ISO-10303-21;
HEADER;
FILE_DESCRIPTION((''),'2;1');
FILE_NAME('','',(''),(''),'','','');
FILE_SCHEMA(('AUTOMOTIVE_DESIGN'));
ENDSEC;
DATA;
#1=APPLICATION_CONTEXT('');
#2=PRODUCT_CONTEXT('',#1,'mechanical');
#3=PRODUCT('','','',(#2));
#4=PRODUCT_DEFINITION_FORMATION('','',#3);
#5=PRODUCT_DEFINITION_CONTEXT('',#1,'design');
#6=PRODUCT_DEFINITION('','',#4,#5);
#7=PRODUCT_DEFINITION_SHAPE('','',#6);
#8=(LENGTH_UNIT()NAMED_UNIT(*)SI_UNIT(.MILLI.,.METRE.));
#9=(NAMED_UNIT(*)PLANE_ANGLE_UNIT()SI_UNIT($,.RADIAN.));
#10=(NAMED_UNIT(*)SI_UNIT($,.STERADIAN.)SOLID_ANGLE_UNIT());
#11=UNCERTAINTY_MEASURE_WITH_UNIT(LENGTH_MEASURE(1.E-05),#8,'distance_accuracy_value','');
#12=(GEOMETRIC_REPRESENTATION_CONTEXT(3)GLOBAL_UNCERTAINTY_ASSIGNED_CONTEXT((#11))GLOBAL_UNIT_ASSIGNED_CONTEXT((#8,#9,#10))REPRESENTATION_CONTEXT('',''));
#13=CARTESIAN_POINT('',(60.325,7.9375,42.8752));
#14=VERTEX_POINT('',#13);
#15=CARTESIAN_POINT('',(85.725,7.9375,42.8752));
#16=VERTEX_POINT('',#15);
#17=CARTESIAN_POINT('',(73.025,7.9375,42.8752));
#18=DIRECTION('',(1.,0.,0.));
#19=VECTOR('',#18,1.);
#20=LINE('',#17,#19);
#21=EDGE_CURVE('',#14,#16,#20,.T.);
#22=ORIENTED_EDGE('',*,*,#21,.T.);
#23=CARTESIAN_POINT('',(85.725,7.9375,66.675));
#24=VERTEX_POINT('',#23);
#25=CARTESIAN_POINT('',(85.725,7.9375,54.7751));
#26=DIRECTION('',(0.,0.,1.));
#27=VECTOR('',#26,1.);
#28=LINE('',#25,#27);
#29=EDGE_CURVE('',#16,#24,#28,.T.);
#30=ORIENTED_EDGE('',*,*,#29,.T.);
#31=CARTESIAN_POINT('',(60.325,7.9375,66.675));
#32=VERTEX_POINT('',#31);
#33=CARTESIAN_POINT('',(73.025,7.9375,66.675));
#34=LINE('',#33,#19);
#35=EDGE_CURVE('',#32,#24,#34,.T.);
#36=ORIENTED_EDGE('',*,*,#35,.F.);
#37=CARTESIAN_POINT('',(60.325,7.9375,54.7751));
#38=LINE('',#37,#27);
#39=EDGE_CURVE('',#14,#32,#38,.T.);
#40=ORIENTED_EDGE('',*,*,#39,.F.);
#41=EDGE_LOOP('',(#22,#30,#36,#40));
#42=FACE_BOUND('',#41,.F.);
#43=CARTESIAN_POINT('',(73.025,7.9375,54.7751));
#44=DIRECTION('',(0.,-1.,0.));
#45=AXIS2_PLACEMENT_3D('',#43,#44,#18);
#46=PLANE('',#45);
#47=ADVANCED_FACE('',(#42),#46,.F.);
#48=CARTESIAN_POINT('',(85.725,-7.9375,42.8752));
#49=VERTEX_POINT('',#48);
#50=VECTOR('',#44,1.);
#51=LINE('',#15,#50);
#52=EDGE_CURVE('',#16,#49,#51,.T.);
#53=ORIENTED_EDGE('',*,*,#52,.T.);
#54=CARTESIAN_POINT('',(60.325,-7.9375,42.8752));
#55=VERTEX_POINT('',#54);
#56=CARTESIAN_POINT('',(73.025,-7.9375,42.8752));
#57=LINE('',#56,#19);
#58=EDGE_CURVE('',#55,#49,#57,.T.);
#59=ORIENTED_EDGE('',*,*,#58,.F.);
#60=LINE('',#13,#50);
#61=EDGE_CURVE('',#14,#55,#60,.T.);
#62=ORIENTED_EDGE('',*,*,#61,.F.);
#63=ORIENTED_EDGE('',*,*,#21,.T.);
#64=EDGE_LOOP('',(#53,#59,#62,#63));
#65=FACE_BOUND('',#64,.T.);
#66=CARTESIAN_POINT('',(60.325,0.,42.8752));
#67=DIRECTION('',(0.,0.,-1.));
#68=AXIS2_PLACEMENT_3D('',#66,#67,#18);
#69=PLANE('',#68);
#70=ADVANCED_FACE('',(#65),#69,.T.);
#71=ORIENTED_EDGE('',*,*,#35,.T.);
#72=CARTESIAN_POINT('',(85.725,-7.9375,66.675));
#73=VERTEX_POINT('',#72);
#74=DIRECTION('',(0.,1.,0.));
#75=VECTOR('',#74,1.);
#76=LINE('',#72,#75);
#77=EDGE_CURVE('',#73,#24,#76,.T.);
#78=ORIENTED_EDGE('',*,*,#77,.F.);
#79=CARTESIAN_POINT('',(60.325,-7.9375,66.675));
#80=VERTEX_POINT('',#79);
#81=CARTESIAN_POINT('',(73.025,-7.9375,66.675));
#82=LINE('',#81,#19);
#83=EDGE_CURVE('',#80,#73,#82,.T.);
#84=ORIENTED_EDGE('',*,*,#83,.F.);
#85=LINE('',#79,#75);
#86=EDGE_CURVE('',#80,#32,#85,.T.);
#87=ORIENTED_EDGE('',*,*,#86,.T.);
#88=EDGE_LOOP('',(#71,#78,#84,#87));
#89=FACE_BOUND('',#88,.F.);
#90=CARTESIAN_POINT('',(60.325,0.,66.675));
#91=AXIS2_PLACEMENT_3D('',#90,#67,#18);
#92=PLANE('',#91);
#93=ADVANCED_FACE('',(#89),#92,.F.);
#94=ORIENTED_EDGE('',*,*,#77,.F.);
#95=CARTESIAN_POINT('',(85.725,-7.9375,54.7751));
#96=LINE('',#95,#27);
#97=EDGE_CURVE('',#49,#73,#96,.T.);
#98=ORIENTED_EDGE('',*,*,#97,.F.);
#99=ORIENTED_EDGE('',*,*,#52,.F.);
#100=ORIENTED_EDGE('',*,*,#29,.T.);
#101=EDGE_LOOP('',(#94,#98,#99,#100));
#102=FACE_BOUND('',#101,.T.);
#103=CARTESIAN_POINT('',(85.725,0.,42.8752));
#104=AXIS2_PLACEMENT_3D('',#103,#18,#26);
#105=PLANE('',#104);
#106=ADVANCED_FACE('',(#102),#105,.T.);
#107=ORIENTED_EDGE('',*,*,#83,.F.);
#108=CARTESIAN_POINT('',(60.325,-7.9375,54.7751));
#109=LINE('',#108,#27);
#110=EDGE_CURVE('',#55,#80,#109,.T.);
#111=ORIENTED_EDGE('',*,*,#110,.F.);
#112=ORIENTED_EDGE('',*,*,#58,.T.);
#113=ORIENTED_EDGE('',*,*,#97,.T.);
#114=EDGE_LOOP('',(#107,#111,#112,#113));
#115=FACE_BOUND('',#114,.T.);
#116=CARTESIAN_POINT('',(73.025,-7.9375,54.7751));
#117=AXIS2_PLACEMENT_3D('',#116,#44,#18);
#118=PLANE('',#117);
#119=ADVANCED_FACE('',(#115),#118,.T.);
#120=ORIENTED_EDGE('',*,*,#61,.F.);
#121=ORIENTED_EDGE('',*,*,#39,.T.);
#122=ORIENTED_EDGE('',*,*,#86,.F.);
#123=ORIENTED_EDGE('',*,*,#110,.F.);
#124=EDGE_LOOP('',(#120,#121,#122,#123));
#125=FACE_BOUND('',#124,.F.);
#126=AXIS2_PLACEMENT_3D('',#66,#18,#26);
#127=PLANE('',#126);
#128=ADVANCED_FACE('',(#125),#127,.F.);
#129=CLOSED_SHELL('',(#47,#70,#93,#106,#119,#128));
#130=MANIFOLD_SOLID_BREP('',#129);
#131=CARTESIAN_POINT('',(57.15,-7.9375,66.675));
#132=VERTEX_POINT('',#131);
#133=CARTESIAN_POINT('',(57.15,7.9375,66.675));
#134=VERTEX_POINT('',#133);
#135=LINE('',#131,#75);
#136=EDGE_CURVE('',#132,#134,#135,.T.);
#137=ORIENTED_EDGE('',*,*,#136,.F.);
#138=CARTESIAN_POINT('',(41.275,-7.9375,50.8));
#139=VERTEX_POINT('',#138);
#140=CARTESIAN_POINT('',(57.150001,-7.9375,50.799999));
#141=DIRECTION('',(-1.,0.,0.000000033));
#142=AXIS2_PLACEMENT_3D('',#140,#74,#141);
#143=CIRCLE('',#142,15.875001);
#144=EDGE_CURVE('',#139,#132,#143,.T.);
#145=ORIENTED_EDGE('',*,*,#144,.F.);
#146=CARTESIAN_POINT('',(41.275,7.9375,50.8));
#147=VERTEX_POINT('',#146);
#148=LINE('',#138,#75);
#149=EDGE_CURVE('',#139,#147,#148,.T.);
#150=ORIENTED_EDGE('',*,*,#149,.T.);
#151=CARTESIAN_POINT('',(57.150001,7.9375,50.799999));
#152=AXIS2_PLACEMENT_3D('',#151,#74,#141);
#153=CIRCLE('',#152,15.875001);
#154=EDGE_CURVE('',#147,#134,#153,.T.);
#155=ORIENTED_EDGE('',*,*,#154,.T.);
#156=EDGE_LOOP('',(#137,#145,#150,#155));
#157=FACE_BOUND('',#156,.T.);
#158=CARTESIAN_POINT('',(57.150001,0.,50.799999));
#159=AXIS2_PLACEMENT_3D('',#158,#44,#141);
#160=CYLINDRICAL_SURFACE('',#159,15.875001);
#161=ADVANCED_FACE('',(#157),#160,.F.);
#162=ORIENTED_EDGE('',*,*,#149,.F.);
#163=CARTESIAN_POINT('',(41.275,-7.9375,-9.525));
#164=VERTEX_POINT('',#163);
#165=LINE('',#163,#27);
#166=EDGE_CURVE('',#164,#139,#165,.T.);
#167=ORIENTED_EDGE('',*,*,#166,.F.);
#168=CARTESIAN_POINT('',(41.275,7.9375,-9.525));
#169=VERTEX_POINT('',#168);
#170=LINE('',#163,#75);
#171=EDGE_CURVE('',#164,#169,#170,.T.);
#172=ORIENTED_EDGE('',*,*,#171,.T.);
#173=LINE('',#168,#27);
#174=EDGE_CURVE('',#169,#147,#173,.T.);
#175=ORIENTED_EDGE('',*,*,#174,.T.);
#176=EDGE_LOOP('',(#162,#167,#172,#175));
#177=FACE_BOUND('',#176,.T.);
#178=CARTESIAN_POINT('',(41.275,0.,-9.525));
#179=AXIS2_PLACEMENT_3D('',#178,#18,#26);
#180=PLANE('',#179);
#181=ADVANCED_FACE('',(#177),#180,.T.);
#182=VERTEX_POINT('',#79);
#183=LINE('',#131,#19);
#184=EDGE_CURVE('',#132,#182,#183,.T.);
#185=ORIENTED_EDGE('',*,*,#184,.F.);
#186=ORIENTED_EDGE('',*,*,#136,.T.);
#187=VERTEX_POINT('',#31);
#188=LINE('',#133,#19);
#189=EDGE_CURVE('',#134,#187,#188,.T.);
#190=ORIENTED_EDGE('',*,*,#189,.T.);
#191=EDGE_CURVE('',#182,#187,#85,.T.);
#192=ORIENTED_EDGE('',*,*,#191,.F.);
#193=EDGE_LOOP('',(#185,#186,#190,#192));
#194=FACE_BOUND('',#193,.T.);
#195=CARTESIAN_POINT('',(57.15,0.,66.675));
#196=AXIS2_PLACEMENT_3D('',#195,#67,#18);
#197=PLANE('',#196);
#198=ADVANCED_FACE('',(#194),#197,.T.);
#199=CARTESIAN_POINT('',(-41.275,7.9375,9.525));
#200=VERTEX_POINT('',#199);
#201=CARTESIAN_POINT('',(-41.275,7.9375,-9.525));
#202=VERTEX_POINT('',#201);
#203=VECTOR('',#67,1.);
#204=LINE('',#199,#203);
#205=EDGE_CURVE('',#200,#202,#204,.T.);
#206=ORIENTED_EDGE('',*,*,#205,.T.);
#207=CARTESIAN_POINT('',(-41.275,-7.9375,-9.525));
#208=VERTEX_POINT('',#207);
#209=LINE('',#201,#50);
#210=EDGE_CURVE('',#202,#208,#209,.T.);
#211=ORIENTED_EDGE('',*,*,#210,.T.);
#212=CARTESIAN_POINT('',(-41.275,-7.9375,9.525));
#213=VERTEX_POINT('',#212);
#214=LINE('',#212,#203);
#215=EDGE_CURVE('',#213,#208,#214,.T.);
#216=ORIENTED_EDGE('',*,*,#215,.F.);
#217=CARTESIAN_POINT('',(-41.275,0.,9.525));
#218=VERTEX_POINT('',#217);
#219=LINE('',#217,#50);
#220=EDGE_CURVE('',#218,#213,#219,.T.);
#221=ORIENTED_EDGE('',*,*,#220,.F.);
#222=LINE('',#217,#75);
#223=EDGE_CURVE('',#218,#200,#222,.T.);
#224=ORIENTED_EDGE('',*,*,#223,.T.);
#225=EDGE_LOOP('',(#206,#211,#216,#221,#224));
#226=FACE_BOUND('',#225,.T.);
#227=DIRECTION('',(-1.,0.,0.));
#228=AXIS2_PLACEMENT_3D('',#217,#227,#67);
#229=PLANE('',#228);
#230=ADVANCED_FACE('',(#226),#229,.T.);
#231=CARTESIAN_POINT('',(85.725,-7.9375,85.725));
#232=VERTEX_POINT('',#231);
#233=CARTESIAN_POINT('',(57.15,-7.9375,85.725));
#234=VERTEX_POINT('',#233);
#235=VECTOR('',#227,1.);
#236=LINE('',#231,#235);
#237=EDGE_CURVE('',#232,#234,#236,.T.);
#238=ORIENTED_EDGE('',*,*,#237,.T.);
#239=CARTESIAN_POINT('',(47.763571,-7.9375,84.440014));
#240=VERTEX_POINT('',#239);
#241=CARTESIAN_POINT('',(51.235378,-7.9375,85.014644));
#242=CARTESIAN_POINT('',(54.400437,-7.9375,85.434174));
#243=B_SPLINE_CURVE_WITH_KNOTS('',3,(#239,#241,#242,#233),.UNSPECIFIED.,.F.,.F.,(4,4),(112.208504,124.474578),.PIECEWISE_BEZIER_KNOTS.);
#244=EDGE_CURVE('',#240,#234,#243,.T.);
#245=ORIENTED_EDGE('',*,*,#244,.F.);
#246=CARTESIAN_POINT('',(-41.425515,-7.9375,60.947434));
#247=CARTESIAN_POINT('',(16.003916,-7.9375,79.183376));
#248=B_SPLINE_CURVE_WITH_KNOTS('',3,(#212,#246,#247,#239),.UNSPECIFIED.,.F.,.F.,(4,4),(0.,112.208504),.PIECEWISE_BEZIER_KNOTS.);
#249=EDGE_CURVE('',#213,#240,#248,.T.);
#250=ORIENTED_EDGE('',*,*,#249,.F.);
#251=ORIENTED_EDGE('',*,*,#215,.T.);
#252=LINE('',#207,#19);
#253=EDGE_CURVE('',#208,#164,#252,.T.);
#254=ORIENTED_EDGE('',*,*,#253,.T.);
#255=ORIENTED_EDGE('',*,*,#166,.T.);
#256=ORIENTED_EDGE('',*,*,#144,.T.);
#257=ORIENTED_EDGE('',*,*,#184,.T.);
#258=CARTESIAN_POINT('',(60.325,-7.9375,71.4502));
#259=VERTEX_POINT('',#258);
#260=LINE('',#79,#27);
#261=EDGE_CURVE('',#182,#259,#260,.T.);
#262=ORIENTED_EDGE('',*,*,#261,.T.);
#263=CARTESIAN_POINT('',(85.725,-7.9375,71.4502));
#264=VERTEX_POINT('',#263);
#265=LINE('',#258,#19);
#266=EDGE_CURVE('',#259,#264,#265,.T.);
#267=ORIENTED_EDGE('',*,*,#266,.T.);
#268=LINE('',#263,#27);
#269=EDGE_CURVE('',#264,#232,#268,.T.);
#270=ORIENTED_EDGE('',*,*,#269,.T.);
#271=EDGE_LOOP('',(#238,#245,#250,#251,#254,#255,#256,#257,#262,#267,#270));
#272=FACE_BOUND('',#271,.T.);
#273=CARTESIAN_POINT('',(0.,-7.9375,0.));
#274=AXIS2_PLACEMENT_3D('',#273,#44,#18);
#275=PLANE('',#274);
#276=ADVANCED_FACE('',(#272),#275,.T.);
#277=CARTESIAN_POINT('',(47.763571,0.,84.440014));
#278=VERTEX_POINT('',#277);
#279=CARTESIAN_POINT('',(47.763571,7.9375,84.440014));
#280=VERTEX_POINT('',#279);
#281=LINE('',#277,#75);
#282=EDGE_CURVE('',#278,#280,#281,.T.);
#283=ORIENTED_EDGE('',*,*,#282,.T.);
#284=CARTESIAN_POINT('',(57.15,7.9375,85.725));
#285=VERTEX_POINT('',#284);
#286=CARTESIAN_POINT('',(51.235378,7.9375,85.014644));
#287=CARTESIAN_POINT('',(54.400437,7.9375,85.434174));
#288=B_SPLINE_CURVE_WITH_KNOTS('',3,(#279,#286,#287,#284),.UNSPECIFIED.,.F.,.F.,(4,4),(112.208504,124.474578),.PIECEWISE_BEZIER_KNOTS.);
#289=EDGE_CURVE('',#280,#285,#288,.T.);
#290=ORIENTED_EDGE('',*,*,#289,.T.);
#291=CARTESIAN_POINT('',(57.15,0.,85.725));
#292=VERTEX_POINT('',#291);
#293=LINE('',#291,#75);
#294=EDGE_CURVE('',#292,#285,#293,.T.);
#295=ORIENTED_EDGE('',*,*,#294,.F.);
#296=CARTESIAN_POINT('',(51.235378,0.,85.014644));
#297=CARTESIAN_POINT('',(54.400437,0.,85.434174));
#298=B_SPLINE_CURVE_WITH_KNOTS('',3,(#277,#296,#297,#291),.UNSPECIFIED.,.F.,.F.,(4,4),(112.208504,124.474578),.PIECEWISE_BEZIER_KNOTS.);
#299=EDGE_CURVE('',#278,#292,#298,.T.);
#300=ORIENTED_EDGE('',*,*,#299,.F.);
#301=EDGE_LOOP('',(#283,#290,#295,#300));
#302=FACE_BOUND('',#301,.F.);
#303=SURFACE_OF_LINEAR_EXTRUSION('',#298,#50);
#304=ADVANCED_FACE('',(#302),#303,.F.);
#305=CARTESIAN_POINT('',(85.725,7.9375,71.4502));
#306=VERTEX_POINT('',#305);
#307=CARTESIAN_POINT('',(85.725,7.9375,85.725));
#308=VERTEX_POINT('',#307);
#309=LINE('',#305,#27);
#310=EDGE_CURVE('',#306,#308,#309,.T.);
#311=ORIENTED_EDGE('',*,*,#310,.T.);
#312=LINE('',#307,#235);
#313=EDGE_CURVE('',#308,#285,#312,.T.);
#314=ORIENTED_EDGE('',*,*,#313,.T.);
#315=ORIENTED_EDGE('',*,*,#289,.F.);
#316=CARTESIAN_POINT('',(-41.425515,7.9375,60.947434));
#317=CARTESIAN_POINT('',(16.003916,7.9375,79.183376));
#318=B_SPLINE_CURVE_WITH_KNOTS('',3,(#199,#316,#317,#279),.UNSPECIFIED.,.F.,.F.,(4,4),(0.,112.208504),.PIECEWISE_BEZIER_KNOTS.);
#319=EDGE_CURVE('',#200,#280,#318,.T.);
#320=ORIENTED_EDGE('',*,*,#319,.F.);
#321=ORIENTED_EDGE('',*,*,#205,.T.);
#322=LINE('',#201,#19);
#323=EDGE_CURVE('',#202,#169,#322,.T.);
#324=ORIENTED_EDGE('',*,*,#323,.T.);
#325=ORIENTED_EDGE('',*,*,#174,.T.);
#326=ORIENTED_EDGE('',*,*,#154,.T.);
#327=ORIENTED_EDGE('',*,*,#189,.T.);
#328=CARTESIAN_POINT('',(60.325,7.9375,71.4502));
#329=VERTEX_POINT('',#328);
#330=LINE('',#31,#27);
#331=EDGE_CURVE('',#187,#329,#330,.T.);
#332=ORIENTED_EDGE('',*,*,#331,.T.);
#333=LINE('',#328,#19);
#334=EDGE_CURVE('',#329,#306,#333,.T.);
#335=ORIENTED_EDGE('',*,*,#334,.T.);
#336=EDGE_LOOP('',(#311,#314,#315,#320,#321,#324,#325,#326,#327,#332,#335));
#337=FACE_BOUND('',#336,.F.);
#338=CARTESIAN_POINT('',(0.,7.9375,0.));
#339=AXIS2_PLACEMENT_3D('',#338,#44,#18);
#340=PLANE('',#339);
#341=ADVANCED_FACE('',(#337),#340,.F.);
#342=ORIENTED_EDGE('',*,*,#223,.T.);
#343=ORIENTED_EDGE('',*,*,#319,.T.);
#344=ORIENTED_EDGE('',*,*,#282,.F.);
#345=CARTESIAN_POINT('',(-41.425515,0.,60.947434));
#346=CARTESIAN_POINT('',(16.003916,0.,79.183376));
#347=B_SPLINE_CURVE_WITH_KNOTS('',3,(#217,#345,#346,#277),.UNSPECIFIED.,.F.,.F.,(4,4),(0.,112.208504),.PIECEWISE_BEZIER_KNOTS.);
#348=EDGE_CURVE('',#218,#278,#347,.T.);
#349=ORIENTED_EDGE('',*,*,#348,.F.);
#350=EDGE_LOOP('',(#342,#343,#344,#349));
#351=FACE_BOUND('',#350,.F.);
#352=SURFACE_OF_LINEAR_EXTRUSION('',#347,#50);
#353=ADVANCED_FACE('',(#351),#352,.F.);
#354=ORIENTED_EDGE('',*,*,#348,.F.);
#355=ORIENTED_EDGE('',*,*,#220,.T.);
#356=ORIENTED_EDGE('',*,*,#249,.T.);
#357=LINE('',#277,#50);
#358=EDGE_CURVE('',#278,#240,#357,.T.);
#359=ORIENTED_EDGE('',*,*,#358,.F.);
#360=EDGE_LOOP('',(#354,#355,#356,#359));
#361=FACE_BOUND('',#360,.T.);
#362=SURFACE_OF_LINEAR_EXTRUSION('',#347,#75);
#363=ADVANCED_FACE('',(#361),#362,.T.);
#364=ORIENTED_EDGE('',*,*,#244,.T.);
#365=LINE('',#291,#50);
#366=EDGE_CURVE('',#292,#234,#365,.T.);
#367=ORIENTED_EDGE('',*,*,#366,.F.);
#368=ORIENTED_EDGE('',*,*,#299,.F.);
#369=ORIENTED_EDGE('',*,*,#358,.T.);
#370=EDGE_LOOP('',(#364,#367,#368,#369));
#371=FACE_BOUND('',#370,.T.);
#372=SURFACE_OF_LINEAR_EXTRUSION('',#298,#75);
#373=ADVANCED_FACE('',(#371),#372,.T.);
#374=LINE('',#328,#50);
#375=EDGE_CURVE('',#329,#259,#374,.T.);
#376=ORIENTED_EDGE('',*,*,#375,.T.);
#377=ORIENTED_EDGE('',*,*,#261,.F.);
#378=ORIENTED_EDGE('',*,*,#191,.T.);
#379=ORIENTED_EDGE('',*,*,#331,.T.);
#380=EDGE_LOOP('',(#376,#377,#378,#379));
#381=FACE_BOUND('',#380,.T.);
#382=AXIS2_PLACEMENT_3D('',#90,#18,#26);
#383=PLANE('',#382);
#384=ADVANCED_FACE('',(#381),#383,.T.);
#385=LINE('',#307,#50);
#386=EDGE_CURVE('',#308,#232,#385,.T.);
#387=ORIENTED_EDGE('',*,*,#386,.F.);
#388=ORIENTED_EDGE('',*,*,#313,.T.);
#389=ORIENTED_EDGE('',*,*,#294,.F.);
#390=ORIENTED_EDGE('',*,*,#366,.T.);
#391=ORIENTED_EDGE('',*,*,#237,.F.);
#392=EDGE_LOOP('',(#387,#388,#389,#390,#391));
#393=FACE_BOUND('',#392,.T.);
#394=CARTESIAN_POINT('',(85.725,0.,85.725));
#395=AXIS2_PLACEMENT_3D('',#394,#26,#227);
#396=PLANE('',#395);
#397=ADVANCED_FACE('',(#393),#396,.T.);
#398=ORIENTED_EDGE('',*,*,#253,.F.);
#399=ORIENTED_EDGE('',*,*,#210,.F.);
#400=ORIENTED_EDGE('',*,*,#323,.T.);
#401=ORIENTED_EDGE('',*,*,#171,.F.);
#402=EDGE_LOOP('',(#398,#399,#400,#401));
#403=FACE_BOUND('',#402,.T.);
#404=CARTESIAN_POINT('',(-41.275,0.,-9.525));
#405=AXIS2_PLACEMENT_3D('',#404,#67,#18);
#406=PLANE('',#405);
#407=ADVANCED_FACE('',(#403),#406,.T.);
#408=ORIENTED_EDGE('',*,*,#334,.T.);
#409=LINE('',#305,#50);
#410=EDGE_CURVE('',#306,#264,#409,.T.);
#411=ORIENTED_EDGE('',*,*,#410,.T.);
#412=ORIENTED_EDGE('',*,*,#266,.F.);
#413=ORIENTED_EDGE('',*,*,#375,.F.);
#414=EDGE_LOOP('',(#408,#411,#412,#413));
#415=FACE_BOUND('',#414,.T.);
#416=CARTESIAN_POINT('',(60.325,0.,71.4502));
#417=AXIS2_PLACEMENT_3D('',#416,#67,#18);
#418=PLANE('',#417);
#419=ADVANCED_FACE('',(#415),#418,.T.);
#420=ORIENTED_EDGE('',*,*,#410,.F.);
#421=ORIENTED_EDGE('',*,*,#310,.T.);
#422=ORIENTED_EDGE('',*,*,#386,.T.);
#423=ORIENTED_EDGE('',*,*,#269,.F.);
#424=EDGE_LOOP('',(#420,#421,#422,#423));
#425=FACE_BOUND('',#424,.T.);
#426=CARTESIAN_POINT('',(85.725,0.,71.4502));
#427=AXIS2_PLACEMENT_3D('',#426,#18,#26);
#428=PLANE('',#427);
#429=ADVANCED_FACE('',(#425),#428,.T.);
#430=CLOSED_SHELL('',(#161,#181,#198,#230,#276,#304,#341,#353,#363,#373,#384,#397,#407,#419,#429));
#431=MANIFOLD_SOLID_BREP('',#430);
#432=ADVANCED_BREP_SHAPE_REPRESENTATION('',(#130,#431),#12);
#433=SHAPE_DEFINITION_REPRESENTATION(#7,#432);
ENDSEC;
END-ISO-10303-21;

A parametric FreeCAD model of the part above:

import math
import FreeCAD as App
import Part
import Sketcher
from FreeCAD import Vector
Q = App.Units.Quantity

doc = App.newDocument("Part")
body = doc.addObject("PartDesign::Body", "Body")
body.AllowCompound = True

# Sketch on XZ plane
sketch1 = body.newObject("Sketcher::SketchObject", "Sketch")
sketch1.AttachmentSupport = (doc.getObject("XZ_Plane"), [""])
sketch1.MapMode = "FlatFace"
sketch1.addGeometry(Part.LineSegment(Vector(-41.275, 9.525, 0), Vector(-41.275, -9.525, 0)), False)
sketch1.addGeometry(Part.LineSegment(Vector(-41.275, -9.525, 0), Vector(41.275, -9.525, 0)), False)
sketch1.addGeometry(Part.LineSegment(Vector(41.275, -9.525, 0), Vector(41.275, 50.8, 0)), False)
sketch1.addGeometry(Part.ArcOfCircle(Part.Circle(Vector(57.150001, 50.799999, 0), Vector(0, 0, 1), 15.875001), math.radians(90.000002), math.radians(179.999998)), False)
sketch1.addGeometry(Part.LineSegment(Vector(57.15, 66.675, 0), Vector(60.325, 66.675, 0)), False)
sketch1.addGeometry(Part.LineSegment(Vector(60.325, 66.675, 0), Vector(60.325, 71.4502, 0)), False)
sketch1.addGeometry(Part.LineSegment(Vector(60.325, 71.4502, 0), Vector(85.725, 71.4502, 0)), False)
sketch1.addGeometry(Part.LineSegment(Vector(85.725, 71.4502, 0), Vector(85.725, 85.725, 0)), False)
sketch1.addGeometry(Part.LineSegment(Vector(85.725, 85.725, 0), Vector(57.15, 85.725, 0)), False)
sketch1.addGeometry(Part.BSplineCurve([Vector(47.763571, 84.440014, 0), Vector(51.235378, 85.014644, 0), Vector(54.400437, 85.434174, 0), Vector(57.15, 85.725, 0)], [4, 4], [112.208504, 124.474578], False, 3, [1, 1, 1, 1], False), False)
sketch1.addGeometry(Part.BSplineCurve([Vector(-41.275, 9.525, 0), Vector(-41.425515, 60.947434, 0), Vector(16.003916, 79.183376, 0), Vector(47.763571, 84.440014, 0)], [4, 4], [0, 112.208504], False, 3, [1, 1, 1, 1], False), False)
sketch1.addGeometry(Part.LineSegment(Vector(60.325, 66.675, 0), Vector(60.325, 42.8752, 0)), False)
sketch1.addGeometry(Part.LineSegment(Vector(60.325, 42.8752, 0), Vector(85.725, 42.8752, 0)), False)
sketch1.addGeometry(Part.LineSegment(Vector(85.725, 42.8752, 0), Vector(85.725, 66.675, 0)), False)
sketch1.addGeometry(Part.LineSegment(Vector(85.725, 66.675, 0), Vector(60.325, 66.675, 0)), False)
sketch1.addConstraint(Sketcher.Constraint("Block", 9))
sketch1.addConstraint(Sketcher.Constraint("Block", 10))
sketch1.addConstraint(Sketcher.Constraint("Coincident", 0, 2, 1, 1))
sketch1.addConstraint(Sketcher.Constraint("Coincident", 1, 2, 2, 1))
sketch1.addConstraint(Sketcher.Constraint("Tangent", 2, 2, 3, 2))
sketch1.addConstraint(Sketcher.Constraint("Tangent", 3, 1, 4, 1))
sketch1.addConstraint(Sketcher.Constraint("Coincident", 4, 2, 5, 1))
sketch1.addConstraint(Sketcher.Constraint("Coincident", 5, 2, 6, 1))
sketch1.addConstraint(Sketcher.Constraint("Coincident", 6, 2, 7, 1))
sketch1.addConstraint(Sketcher.Constraint("Coincident", 7, 2, 8, 1))
sketch1.addConstraint(Sketcher.Constraint("Coincident", 8, 2, 9, 2))
sketch1.addConstraint(Sketcher.Constraint("Coincident", 10, 1, 0, 1))
sketch1.addConstraint(Sketcher.Constraint("Coincident", 11, 2, 12, 1))
sketch1.addConstraint(Sketcher.Constraint("Coincident", 12, 2, 13, 1))
sketch1.addConstraint(Sketcher.Constraint("Coincident", 13, 2, 14, 1))
sketch1.addConstraint(Sketcher.Constraint("Coincident", 14, 2, 11, 1))
sketch1.addConstraint(Sketcher.Constraint("Vertical", 0))
sketch1.addConstraint(Sketcher.Constraint("Horizontal", 1))
sketch1.addConstraint(Sketcher.Constraint("Vertical", 2))
sketch1.addConstraint(Sketcher.Constraint("Horizontal", 4))
sketch1.addConstraint(Sketcher.Constraint("Vertical", 5))
sketch1.addConstraint(Sketcher.Constraint("Horizontal", 6))
sketch1.addConstraint(Sketcher.Constraint("Vertical", 7))
sketch1.addConstraint(Sketcher.Constraint("Horizontal", 8))
sketch1.addConstraint(Sketcher.Constraint("Vertical", 11))
sketch1.addConstraint(Sketcher.Constraint("Horizontal", 12))
sketch1.addConstraint(Sketcher.Constraint("Vertical", 13))
sketch1.addConstraint(Sketcher.Constraint("Horizontal", 14))
sketch1.addConstraint(Sketcher.Constraint("Coincident", 14, 2, 4, 2))
sketch1.addConstraint(Sketcher.Constraint("Vertical", 3, 1, 8, 2))
sketch1.addConstraint(Sketcher.Constraint("Vertical", 7, 2, 12, 2))
sketch1.addConstraint(Sketcher.Constraint("DistanceX", 6, 1, 6, 2, Q("1 in")))
sketch1.addConstraint(Sketcher.Constraint("DistanceY", -1, 1, 3, 3, Q("2 in")))
sketch1.addConstraint(Sketcher.Constraint("Radius", 3, Q("0.625 in")))
sketch1.addConstraint(Sketcher.Constraint("DistanceY", 1, 2, 3, 1, Q("3 in")))
sketch1.addConstraint(Sketcher.Constraint("DistanceX", 0, 2, 4, 2, Q("4 in")))
sketch1.addConstraint(Sketcher.Constraint("DistanceY", 5, 1, 5, 2, Q("0.188 in")))
sketch1.addConstraint(Sketcher.Constraint("DistanceY", 11, 2, 11, 1, Q("0.937 in")))
pad1 = body.newObject("PartDesign::Pad", "Pad")
pad1.Profile = sketch1
pad1.Length = Q("0.625 in")
pad1.Midplane = True

doc.recompute()
